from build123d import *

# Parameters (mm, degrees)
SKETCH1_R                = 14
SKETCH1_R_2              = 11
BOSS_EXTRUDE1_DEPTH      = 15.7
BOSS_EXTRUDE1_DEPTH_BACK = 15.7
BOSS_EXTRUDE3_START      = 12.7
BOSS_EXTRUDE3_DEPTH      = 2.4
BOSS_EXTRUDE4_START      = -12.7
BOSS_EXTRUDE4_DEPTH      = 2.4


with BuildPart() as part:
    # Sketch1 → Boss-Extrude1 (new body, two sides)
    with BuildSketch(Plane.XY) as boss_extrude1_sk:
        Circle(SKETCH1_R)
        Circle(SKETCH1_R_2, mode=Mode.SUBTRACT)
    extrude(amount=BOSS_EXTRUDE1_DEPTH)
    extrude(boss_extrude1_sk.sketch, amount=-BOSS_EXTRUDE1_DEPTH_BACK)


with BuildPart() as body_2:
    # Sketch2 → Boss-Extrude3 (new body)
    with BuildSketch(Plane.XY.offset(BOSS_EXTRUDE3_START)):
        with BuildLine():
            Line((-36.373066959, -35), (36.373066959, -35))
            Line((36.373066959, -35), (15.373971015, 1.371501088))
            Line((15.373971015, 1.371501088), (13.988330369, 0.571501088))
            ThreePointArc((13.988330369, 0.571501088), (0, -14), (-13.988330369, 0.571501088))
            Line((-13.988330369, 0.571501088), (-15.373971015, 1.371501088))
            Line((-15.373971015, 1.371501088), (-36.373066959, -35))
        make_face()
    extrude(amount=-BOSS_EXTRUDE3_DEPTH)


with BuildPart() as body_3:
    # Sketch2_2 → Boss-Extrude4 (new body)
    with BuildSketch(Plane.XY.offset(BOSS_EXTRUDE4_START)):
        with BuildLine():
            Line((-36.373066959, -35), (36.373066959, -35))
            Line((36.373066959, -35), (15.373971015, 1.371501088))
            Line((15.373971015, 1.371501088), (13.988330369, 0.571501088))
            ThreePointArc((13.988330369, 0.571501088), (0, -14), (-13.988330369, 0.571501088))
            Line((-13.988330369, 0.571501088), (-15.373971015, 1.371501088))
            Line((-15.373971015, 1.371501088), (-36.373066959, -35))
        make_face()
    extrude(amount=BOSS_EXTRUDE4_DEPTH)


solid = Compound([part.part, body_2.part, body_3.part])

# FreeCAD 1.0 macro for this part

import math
import FreeCAD as App
import Part
import Sketcher
Q = App.Units.Quantity

doc = App.newDocument("Part")
body = doc.addObject("PartDesign::Body", "Body")

# Sketch on XY plane
sketch1 = doc.addObject("Sketcher::SketchObject", "Sketch")
body.addObject(sketch1)
sketch1.AttachmentSupport = (doc.XY_Plane, [""])
sketch1.MapMode = "FlatFace"
sketch1.addGeometry([
    Part.Circle(App.Vector(0, 0, 0), App.Vector(0, 0, 1), 14),
    Part.Circle(App.Vector(0, 0, 0), App.Vector(0, 0, 1), 11),
], False)
sketch1.addConstraint([
    Sketcher.Constraint("Coincident", 0, 3, -1, 1),
    Sketcher.Constraint("Coincident", 1, 3, -1, 1),
    Sketcher.Constraint("Diameter", 0, Q("28 mm")),
    Sketcher.Constraint("Diameter", 1, Q("22 mm")),
])
pad1 = doc.addObject("PartDesign::Pad", "Pad")
body.addObject(pad1)
pad1.Profile = sketch1
pad1.Type = "TwoLengths"
pad1.Length = 15.7
pad1.Length2 = 15.7
body2 = doc.addObject("PartDesign::Body", "Body001")

# Sketch on XY plane
sketch2 = doc.addObject("Sketcher::SketchObject", "Sketch001")
body2.addObject(sketch2)
sketch2.AttachmentSupport = (doc.getObject("XY_Plane001"), [""])
sketch2.MapMode = "FlatFace"
sketch2.AttachmentOffset = App.Placement(App.Vector(0, 0, 12.7), App.Rotation())
sketch2.addGeometry([
    Part.LineSegment(App.Vector(-36.373067, -35, 0), App.Vector(36.373067, -35, 0)),  # 0
    Part.LineSegment(App.Vector(36.373067, -35, 0), App.Vector(15.373971, 1.371501, 0)),  # 1
    Part.LineSegment(App.Vector(15.373971, 1.371501, 0), App.Vector(13.98833, 0.571501, 0)),  # 2
    Part.ArcOfCircle(Part.Circle(App.Vector(0, 0, 0), App.Vector(0, 0, 1), 14), math.radians(177.66045), math.radians(362.33955)),  # 3
    Part.LineSegment(App.Vector(-13.98833, 0.571501, 0), App.Vector(-15.373971, 1.371501, 0)),  # 4
    Part.LineSegment(App.Vector(-15.373971, 1.371501, 0), App.Vector(-36.373067, -35, 0)),  # 5
], False)
sketch2.addConstraint([
    Sketcher.Constraint("Coincident", 0, 2, 1, 1),
    Sketcher.Constraint("Coincident", 1, 2, 2, 1),
    Sketcher.Constraint("Coincident", 2, 2, 3, 2),
    Sketcher.Constraint("Coincident", 3, 1, 4, 1),
    Sketcher.Constraint("Coincident", 4, 2, 5, 1),
    Sketcher.Constraint("Coincident", 5, 2, 0, 1),
    Sketcher.Constraint("Horizontal", 0),
    Sketcher.Constraint("Coincident", 3, 3, -1, 1),
    Sketcher.Constraint("Symmetric", 1, 2, 4, 2, -2),
    Sketcher.Constraint("Perpendicular", 1, 2),
    Sketcher.Constraint("Perpendicular", 4, 5),
    Sketcher.Constraint("Horizontal", 2, 2, 3, 1),
    Sketcher.Constraint("Radius", 3, Q("14 mm")),
    Sketcher.Constraint("Angle", 1, Q("120 deg")),
    Sketcher.Constraint("DistanceY", 0, 2, -1, 1, Q("35 mm")),
    Sketcher.Constraint("Distance", 2, Q("1.6 mm")),
    Sketcher.Constraint("DistanceY", -1, 1, 1, 2, Q("1.371501 mm")),
])
pad2 = doc.addObject("PartDesign::Pad", "Pad001")
body2.addObject(pad2)
pad2.Profile = sketch2
pad2.Length = 2.4
pad2.Reversed = True
body3 = doc.addObject("PartDesign::Body", "Body002")

# Sketch on XY plane
sketch3 = doc.addObject("Sketcher::SketchObject", "Sketch002")
body3.addObject(sketch3)
sketch3.AttachmentSupport = (doc.getObject("XY_Plane002"), [""])
sketch3.MapMode = "FlatFace"
sketch3.AttachmentOffset = App.Placement(App.Vector(0, 0, -12.7), App.Rotation())
sketch3.addGeometry([
    Part.LineSegment(App.Vector(-36.373067, -35, 0), App.Vector(36.373067, -35, 0)),  # 0
    Part.LineSegment(App.Vector(36.373067, -35, 0), App.Vector(15.373971, 1.371501, 0)),  # 1
    Part.LineSegment(App.Vector(15.373971, 1.371501, 0), App.Vector(13.98833, 0.571501, 0)),  # 2
    Part.ArcOfCircle(Part.Circle(App.Vector(0, 0, 0), App.Vector(0, 0, 1), 14), math.radians(177.66045), math.radians(362.33955)),  # 3
    Part.LineSegment(App.Vector(-13.98833, 0.571501, 0), App.Vector(-15.373971, 1.371501, 0)),  # 4
    Part.LineSegment(App.Vector(-15.373971, 1.371501, 0), App.Vector(-36.373067, -35, 0)),  # 5
], False)
sketch3.addConstraint([
    Sketcher.Constraint("Coincident", 0, 2, 1, 1),
    Sketcher.Constraint("Coincident", 1, 2, 2, 1),
    Sketcher.Constraint("Coincident", 2, 2, 3, 2),
    Sketcher.Constraint("Coincident", 3, 1, 4, 1),
    Sketcher.Constraint("Coincident", 4, 2, 5, 1),
    Sketcher.Constraint("Coincident", 5, 2, 0, 1),
    Sketcher.Constraint("Horizontal", 0),
    Sketcher.Constraint("Coincident", 3, 3, -1, 1),
    Sketcher.Constraint("Symmetric", 1, 2, 4, 2, -2),
    Sketcher.Constraint("Perpendicular", 1, 2),
    Sketcher.Constraint("Perpendicular", 4, 5),
    Sketcher.Constraint("Horizontal", 2, 2, 3, 1),
    Sketcher.Constraint("Radius", 3, Q("14 mm")),
    Sketcher.Constraint("Angle", 1, Q("120 deg")),
    Sketcher.Constraint("DistanceY", 0, 2, -1, 1, Q("35 mm")),
    Sketcher.Constraint("Distance", 2, Q("1.6 mm")),
    Sketcher.Constraint("DistanceY", -1, 1, 1, 2, Q("1.371501 mm")),
])
pad3 = doc.addObject("PartDesign::Pad", "Pad002")
body3.addObject(pad3)
pad3.Profile = sketch3
pad3.Length = 2.4

doc.recompute()
